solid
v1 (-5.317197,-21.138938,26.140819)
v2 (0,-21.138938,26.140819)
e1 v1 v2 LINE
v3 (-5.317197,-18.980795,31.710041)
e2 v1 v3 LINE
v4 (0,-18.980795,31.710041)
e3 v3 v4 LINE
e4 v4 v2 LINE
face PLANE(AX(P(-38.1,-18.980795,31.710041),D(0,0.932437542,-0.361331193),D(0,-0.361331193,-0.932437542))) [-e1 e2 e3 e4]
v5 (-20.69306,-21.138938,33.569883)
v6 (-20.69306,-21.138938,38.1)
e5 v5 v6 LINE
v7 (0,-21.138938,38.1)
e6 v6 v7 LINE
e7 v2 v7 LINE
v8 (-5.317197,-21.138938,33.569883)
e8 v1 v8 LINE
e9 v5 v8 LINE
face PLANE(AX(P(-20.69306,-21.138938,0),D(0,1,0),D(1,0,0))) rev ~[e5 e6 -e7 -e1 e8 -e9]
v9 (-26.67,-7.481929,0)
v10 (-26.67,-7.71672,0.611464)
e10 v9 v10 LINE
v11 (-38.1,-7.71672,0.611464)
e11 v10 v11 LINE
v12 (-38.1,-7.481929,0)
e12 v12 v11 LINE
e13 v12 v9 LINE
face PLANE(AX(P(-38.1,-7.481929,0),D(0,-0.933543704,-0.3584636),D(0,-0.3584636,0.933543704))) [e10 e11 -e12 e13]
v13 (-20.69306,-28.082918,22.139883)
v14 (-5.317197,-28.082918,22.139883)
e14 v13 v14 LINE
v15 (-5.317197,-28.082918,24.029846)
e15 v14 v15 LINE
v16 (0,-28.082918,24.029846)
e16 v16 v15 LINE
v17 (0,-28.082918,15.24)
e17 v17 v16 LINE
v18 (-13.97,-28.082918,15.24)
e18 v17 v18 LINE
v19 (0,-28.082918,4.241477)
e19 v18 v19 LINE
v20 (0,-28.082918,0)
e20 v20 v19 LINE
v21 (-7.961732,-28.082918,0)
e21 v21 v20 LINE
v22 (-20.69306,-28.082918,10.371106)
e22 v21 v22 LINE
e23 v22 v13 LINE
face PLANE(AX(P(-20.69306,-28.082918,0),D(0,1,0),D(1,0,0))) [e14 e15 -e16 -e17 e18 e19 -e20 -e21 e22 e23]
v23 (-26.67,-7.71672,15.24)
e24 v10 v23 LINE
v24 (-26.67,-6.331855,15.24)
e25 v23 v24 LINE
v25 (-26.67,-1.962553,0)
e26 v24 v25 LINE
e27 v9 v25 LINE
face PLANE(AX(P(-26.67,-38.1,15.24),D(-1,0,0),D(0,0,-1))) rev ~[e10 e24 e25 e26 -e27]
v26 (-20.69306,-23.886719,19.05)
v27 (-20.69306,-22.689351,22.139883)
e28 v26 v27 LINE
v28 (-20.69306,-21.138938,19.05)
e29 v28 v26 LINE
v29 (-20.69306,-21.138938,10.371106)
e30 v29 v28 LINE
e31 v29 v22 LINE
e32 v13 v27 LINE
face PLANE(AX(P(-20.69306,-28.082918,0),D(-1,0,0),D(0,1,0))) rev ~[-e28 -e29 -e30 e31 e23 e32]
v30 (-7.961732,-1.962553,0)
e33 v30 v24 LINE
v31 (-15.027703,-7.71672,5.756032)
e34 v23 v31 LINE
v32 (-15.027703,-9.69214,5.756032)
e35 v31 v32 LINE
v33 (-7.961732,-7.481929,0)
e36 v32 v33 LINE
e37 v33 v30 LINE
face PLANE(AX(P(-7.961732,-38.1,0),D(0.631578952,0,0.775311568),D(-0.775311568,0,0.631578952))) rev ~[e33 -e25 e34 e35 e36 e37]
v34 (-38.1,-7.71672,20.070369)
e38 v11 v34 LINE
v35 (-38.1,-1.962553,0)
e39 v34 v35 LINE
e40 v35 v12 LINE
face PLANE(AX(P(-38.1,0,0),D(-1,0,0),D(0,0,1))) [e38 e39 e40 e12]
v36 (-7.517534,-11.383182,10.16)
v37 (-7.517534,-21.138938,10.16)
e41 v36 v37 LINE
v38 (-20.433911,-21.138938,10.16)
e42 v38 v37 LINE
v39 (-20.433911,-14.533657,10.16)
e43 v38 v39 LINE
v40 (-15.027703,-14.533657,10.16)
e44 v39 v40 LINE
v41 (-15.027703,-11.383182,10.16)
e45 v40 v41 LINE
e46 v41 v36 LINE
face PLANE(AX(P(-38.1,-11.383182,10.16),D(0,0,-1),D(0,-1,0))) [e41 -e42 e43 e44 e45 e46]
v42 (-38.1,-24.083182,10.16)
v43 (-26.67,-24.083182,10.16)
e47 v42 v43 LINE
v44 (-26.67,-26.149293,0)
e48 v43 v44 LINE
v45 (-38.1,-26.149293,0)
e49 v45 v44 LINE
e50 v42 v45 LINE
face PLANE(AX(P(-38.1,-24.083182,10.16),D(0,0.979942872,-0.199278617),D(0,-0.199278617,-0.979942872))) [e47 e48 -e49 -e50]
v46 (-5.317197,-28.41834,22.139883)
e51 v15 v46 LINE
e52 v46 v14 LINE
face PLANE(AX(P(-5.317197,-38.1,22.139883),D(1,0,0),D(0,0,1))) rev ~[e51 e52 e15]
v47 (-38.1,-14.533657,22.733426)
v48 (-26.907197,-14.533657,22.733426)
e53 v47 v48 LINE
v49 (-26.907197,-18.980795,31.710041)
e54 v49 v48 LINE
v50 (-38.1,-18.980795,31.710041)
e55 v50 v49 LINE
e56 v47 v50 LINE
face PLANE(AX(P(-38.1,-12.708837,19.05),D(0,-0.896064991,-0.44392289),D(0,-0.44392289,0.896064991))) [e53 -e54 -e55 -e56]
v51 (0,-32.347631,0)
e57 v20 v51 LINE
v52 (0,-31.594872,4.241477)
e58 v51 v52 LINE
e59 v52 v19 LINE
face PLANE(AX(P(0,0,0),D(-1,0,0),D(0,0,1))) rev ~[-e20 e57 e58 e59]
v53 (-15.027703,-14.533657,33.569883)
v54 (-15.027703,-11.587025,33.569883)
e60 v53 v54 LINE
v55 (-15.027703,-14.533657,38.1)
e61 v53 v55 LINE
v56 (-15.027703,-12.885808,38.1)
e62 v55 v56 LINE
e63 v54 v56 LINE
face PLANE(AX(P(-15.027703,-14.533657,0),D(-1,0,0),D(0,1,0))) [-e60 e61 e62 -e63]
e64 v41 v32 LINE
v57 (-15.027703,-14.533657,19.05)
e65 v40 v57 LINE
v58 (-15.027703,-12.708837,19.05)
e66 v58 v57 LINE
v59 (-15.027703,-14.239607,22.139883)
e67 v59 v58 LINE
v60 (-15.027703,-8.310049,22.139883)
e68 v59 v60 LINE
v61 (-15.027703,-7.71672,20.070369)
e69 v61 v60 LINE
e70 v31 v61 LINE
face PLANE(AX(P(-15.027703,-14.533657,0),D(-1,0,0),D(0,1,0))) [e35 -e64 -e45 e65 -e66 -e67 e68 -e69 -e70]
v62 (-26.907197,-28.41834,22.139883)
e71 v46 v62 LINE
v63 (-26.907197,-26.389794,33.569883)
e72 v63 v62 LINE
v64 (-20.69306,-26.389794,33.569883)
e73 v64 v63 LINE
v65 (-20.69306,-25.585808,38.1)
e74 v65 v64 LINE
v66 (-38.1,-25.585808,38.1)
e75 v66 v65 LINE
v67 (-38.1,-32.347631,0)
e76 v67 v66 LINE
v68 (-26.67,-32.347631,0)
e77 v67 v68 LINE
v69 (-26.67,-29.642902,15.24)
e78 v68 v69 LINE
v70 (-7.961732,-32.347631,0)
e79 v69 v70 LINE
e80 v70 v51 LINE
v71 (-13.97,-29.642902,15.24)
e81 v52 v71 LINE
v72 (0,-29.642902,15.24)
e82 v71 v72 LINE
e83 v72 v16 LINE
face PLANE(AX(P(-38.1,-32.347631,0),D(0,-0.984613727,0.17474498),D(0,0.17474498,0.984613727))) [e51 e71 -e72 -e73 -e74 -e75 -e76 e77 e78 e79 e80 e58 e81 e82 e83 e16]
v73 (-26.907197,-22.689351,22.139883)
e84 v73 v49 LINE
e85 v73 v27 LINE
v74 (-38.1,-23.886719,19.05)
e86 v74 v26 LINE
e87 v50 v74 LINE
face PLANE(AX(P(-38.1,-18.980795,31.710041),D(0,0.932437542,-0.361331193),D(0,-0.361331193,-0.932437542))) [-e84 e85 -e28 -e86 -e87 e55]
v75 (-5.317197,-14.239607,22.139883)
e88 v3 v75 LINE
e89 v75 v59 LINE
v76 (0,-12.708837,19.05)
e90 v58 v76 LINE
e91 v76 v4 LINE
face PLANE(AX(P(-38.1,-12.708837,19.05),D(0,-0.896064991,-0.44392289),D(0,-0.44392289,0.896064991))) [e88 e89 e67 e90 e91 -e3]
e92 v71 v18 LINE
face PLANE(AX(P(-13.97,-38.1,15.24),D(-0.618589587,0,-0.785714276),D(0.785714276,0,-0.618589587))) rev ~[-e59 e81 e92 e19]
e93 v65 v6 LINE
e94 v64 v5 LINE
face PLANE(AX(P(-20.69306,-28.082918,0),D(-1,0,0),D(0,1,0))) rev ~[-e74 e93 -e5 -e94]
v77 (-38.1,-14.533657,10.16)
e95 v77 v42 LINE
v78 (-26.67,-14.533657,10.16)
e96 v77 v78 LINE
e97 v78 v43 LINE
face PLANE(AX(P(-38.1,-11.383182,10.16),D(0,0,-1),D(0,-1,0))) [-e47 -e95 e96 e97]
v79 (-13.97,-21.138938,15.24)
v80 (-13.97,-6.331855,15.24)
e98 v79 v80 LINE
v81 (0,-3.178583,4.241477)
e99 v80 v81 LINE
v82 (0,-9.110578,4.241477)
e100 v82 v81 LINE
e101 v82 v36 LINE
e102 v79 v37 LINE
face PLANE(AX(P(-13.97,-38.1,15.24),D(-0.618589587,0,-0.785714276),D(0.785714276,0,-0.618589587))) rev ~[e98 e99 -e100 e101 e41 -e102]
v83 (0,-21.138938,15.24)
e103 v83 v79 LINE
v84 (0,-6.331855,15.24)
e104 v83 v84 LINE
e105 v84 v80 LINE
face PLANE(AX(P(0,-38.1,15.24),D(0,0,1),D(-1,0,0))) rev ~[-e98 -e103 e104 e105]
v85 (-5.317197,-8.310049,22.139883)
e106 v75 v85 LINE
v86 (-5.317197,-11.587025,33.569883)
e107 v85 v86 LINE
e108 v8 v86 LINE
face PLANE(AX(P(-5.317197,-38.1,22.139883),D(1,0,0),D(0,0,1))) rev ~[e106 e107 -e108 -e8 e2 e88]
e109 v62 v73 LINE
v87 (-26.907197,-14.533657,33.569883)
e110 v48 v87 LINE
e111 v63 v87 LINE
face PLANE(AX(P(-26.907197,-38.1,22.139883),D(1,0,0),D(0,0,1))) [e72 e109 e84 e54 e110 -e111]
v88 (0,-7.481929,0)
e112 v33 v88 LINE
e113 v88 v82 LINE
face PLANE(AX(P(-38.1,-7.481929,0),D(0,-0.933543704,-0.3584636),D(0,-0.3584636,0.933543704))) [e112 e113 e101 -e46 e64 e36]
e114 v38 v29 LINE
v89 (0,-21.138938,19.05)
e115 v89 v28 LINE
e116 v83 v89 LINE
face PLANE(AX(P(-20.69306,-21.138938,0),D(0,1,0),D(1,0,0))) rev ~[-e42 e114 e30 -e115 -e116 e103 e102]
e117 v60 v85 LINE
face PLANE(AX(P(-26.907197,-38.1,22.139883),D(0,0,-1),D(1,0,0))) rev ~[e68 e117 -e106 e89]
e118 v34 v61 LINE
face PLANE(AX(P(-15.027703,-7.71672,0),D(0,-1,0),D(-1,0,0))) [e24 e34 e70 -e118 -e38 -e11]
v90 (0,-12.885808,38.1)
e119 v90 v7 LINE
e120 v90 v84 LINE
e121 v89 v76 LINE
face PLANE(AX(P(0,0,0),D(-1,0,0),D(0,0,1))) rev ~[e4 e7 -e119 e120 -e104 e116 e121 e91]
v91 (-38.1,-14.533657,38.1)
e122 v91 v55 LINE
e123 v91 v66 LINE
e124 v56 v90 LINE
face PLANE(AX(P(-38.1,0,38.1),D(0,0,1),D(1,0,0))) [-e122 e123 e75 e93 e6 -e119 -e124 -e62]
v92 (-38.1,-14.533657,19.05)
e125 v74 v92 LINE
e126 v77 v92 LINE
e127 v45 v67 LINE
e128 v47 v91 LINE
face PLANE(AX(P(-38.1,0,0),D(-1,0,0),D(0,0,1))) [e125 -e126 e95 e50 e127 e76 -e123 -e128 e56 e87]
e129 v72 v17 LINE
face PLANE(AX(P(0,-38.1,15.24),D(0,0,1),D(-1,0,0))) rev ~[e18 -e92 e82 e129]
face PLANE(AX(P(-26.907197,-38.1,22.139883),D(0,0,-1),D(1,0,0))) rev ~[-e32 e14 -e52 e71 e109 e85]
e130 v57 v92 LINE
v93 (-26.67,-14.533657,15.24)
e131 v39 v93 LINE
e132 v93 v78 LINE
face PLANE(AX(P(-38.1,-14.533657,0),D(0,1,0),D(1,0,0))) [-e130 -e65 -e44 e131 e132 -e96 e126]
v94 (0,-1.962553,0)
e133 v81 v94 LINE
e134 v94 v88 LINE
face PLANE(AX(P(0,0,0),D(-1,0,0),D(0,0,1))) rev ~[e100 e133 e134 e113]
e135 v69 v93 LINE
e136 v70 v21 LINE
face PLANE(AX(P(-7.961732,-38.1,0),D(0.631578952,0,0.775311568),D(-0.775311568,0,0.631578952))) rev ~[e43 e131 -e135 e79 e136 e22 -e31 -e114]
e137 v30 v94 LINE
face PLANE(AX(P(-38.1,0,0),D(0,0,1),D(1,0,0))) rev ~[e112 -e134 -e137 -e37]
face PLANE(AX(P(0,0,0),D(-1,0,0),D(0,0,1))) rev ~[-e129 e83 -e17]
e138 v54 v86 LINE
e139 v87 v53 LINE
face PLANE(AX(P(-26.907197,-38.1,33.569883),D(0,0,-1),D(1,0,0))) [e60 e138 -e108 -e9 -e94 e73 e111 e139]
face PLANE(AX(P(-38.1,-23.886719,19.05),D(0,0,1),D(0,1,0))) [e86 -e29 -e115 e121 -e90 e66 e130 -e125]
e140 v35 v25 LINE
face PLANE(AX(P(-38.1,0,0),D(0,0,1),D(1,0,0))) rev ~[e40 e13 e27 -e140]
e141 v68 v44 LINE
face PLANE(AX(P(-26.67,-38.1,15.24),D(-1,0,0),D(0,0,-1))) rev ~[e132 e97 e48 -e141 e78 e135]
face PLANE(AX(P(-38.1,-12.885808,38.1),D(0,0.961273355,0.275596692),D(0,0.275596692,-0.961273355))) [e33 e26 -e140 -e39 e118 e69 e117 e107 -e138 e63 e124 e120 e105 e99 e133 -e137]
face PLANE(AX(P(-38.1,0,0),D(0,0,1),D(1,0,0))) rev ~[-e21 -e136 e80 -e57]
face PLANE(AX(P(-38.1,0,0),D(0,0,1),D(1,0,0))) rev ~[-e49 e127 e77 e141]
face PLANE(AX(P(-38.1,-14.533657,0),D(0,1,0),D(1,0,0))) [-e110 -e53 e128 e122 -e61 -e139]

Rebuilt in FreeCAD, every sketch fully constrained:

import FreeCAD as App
import Part
import Sketcher
Q = App.Units.Quantity

doc = App.newDocument("Part")
params = doc.addObject("Spreadsheet::Sheet", "Params")
for row, (alias, value) in enumerate([
    ("sketch1_width", "1.5 in"),
    ("pad1_length", "1.5 in"),
    ("sketch2_height", "0.6 in"),
    ("sketch2_length", "0.7 in"),
    ("sketch2_width", "0.85 in"),
    ("sketch2_width2", "0.55 in"),
    ("sketch2_height2", "0.45 in"),
    ("pocket1_length", "1.5 in"),
    ("sketch3_width", "0.5 in"),
    ("sketch3_height", "1.5 in"),
    ("pocket2_length", "1.5 in"),
    ("pocket3_length", "1.5 in"),
], start=1):
    params.set(f"A{row}", alias)
    params.set(f"B{row}", "=" + value)
    params.setAlias(f"B{row}", alias)

body = doc.addObject("PartDesign::Body", "Body")

sketch1 = body.newObject("Sketcher::SketchObject", "Sketch")
sketch1.AttachmentSupport = (doc.getObject("XZ_Plane"), [""])
sketch1.MapMode = "FlatFace"
sketch1.addGeometry([
    Part.LineSegment(App.Vector(-38, 38, 0), App.Vector(-38, 0, 0)),
    Part.LineSegment(App.Vector(-38, 0, 0), App.Vector(0, 0, 0)),
    Part.LineSegment(App.Vector(0, 0, 0), App.Vector(0, 38, 0)),
    Part.LineSegment(App.Vector(0, 38, 0), App.Vector(-38, 38, 0)),
], False)
sketch1.addConstraint([
    Sketcher.Constraint("Coincident", 0, 2, 1, 1),
    Sketcher.Constraint("Coincident", 1, 2, 2, 1),
    Sketcher.Constraint("Coincident", 2, 2, 3, 1),
    Sketcher.Constraint("Coincident", 3, 2, 0, 1),
    Sketcher.Constraint("Vertical", 0),
    Sketcher.Constraint("Horizontal", 1),
    Sketcher.Constraint("Vertical", 2),
    Sketcher.Constraint("Horizontal", 3),
    Sketcher.Constraint("Coincident", 1, 2, -1, 1),
    Sketcher.Constraint("Equal", 3, 0),
    Sketcher.Constraint("DistanceX", 1, 1, 1, 2, Q("1.5 in")),
])
sketch1.setExpression("Constraints[10]", "Params.sketch1_width")
pad1 = body.newObject("PartDesign::Pad", "Pad")
pad1.Profile = sketch1
pad1.setExpression("Length", "Params.pad1_length")

sketch2 = body.newObject("Sketcher::SketchObject", "Sketch001")
sketch2.AttachmentSupport = (doc.getObject("XZ_Plane"), [""])
sketch2.MapMode = "FlatFace"
sketch2.AttachmentOffset = App.Placement(App.Vector(0, 0, 1.5 * 25.4), App.Rotation())
sketch2.addGeometry([
    Part.LineSegment(App.Vector(-27, 34, 0), App.Vector(-27, 22, 0)),
    Part.LineSegment(App.Vector(-27, 22, 0), App.Vector(-5, 22, 0)),
    Part.LineSegment(App.Vector(-5, 22, 0), App.Vector(-5, 34, 0)),
    Part.LineSegment(App.Vector(-5, 34, 0), App.Vector(-27, 34, 0)),
    Part.LineSegment(App.Vector(-27, 15, 0), App.Vector(-27, 0, 0)),
    Part.LineSegment(App.Vector(-27, 0, 0), App.Vector(-8, 0, 0)),
    Part.LineSegment(App.Vector(-8, 0, 0), App.Vector(-27, 15, 0)),
    Part.LineSegment(App.Vector(0, 4, 0), App.Vector(0, 15, 0)),
    Part.LineSegment(App.Vector(0, 15, 0), App.Vector(-14, 15, 0)),
    Part.LineSegment(App.Vector(-14, 15, 0), App.Vector(0, 4, 0)),
], False)
sketch2.addConstraint([
    Sketcher.Constraint("Coincident", 0, 2, 1, 1),
    Sketcher.Constraint("Coincident", 1, 2, 2, 1),
    Sketcher.Constraint("Coincident", 2, 2, 3, 1),
    Sketcher.Constraint("Coincident", 3, 2, 0, 1),
    Sketcher.Constraint("Coincident", 4, 2, 5, 1),
    Sketcher.Constraint("Coincident", 5, 2, 6, 1),
    Sketcher.Constraint("Coincident", 6, 2, 4, 1),
    Sketcher.Constraint("Coincident", 7, 2, 8, 1),
    Sketcher.Constraint("Coincident", 8, 2, 9, 1),
    Sketcher.Constraint("Coincident", 9, 2, 7, 1),
    Sketcher.Constraint("Vertical", 0),
    Sketcher.Constraint("Horizontal", 1),
    Sketcher.Constraint("Vertical", 2),
    Sketcher.Constraint("Horizontal", 3),
    Sketcher.Constraint("Vertical", 4),
    Sketcher.Constraint("Horizontal", 5),
    Sketcher.Constraint("Vertical", 7),
    Sketcher.Constraint("Horizontal", 8),
    Sketcher.Constraint("PointOnObject", 4, 2, -1),
    Sketcher.Constraint("PointOnObject", 7, 2, -2),
    Sketcher.Constraint("Horizontal", 6, 2, 7, 2),
    Sketcher.Constraint("DistanceY", 4, 2, 4, 1, Q("0.6 in")),
    Sketcher.Constraint("Distance", 9, Q("0.7 in")),
    Sketcher.Constraint("DistanceX", 1, 1, 1, 2, Q("0.85 in")),
    Sketcher.Constraint("DistanceX", 8, 2, 8, 1, Q("0.55 in")),
    Sketcher.Constraint("DistanceY", 0, 2, 0, 1, Q("0.45 in")),
    Sketcher.Constraint("DistanceX", 6, 2, 8, 2, Q("0.5 in")),
    Sketcher.Constraint("Distance", 6, Q("0.95 in")),
    Sketcher.Constraint("DistanceX", 0, 2, -1, 1, Q("26.907197 mm")),
    Sketcher.Constraint("DistanceY", -1, 1, 0, 2, Q("22.139883 mm")),
])
sketch2.setExpression("Constraints[21]", "Params.sketch2_height")
sketch2.setExpression("Constraints[22]", "Params.sketch2_length")
sketch2.setExpression("Constraints[23]", "Params.sketch2_width")
sketch2.setExpression("Constraints[24]", "Params.sketch2_width2")
sketch2.setExpression("Constraints[25]", "Params.sketch2_height2")
pocket1 = body.newObject("PartDesign::Pocket", "Pocket")
pocket1.Profile = sketch2
pocket1.setExpression("Length", "Params.pocket1_length")

sketch3 = body.newObject("Sketcher::SketchObject", "Sketch002")
sketch3.AttachmentSupport = (doc.getObject("YZ_Plane"), [""])
sketch3.MapMode = "FlatFace"
sketch3.AttachmentOffset = App.Placement(App.Vector(0, 0, -1.5 * 25.4), App.Rotation())
sketch3.addGeometry([
    Part.LineSegment(App.Vector(0, 38.1, 0), App.Vector(-12.9, 38.1, 0)),
    Part.LineSegment(App.Vector(-12.9, 38.1, 0), App.Vector(-2, 0, 0)),
    Part.LineSegment(App.Vector(-2, 0, 0), App.Vector(0, 0, 0)),
    Part.LineSegment(App.Vector(0, 0, 0), App.Vector(0, 38.1, 0)),
    Part.LineSegment(App.Vector(-19, 31.7, 0), App.Vector(-23.9, 19.1, 0)),
    Part.LineSegment(App.Vector(-23.9, 19.1, 0), App.Vector(-12.7, 19.1, 0)),
    Part.LineSegment(App.Vector(-12.7, 19.1, 0), App.Vector(-19, 31.7, 0)),
    Part.LineSegment(App.Vector(-25.6, 38.1, 0), App.Vector(-38.1, 38.1, 0)),
    Part.LineSegment(App.Vector(-38.1, 38.1, 0), App.Vector(-38.1, 0, 0)),
    Part.LineSegment(App.Vector(-38.1, 0, 0), App.Vector(-32.3, 0, 0)),
    Part.LineSegment(App.Vector(-32.3, 0, 0), App.Vector(-25.6, 38.1, 0)),
    Part.LineSegment(App.Vector(-24.1, 10.2, 0), App.Vector(-26.1, 0, 0)),
    Part.LineSegment(App.Vector(-26.1, 0, 0), App.Vector(-7.5, 0, 0)),
    Part.LineSegment(App.Vector(-7.5, 0, 0), App.Vector(-11.4, 10.2, 0)),
    Part.LineSegment(App.Vector(-11.4, 10.2, 0), App.Vector(-24.1, 10.2, 0)),
], False)
sketch3.addConstraint([
    Sketcher.Constraint("Coincident", 0, 2, 1, 1),
    Sketcher.Constraint("Coincident", 1, 2, 2, 1),
    Sketcher.Constraint("Coincident", 2, 2, 3, 1),
    Sketcher.Constraint("Coincident", 3, 2, 0, 1),
    Sketcher.Constraint("Coincident", 4, 2, 5, 1),
    Sketcher.Constraint("Coincident", 5, 2, 6, 1),
    Sketcher.Constraint("Coincident", 6, 2, 4, 1),
    Sketcher.Constraint("Coincident", 7, 2, 8, 1),
    Sketcher.Constraint("Coincident", 8, 2, 9, 1),
    Sketcher.Constraint("Coincident", 9, 2, 10, 1),
    Sketcher.Constraint("Coincident", 10, 2, 7, 1),
    Sketcher.Constraint("Coincident", 11, 2, 12, 1),
    Sketcher.Constraint("Coincident", 12, 2, 13, 1),
    Sketcher.Constraint("Coincident", 13, 2, 14, 1),
    Sketcher.Constraint("Coincident", 14, 2, 11, 1),
    Sketcher.Constraint("Horizontal", 0),
    Sketcher.Constraint("Horizontal", 2),
    Sketcher.Constraint("Vertical", 3),
    Sketcher.Constraint("Horizontal", 5),
    Sketcher.Constraint("Horizontal", 7),
    Sketcher.Constraint("Vertical", 8),
    Sketcher.Constraint("Horizontal", 9),
    Sketcher.Constraint("Horizontal", 12),
    Sketcher.Constraint("Horizontal", 14),
    Sketcher.Constraint("Coincident", 2, 2, -1, 1),
    Sketcher.Constraint("PointOnObject", 8, 2, -1),
    Sketcher.Constraint("PointOnObject", 11, 2, -1),
    Sketcher.Constraint("Horizontal", 3, 2, 7, 2),
    Sketcher.Constraint("DistanceX", 14, 2, 14, 1, Q("0.5 in")),
    Sketcher.Constraint("DistanceY", 3, 1, 3, 2, Q("1.5 in")),
    Sketcher.Constraint("DistanceX", 7, 2, -1, 1, Q("1.5 in")),
    Sketcher.Constraint("DistanceY", -1, 1, 13, 2, Q("0.4 in")),
    Sketcher.Constraint("DistanceX", 10, 2, 0, 2, Q("0.5 in")),
    Sketcher.Constraint("DistanceY", -1, 1, 4, 2, Q("0.75 in")),
    Sketcher.Constraint("DistanceX", 0, 2, 0, 1, Q("12.885808 mm")),
    Sketcher.Constraint("DistanceX", 5, 1, 5, 2, Q("11.177882 mm")),
    Sketcher.Constraint("DistanceX", 9, 1, 9, 2, Q("5.752369 mm")),
    Sketcher.Constraint("DistanceX", 9, 2, 12, 2, Q("24.865702 mm")),
    Sketcher.Constraint("Distance", 4, Q("13.577361 mm")),
    Sketcher.Constraint("Distance", 11, Q("10.367951 mm")),
    Sketcher.Constraint("Distance", 13, Q("10.883261 mm")),
    Sketcher.Constraint("DistanceX", 2, 1, 2, 2, Q("1.962553 mm")),
    Sketcher.Constraint("DistanceX", 4, 2, -1, 1, Q("23.886719 mm")),
    Sketcher.Constraint("DistanceY", -1, 1, 6, 2, Q("31.710041 mm")),
])
sketch3.setExpression("Constraints[28]", "Params.sketch3_width")
sketch3.setExpression("Constraints[29]", "Params.sketch3_height")
pocket2 = body.newObject("PartDesign::Pocket", "Pocket001")
pocket2.Profile = sketch3
pocket2.setExpression("Length", "Params.pocket2_length")
pocket2.Reversed = True

sketch4 = body.newObject("Sketcher::SketchObject", "Sketch003")
sketch4.AttachmentSupport = (doc.getObject("XY_Plane"), [""])
sketch4.MapMode = "FlatFace"
sketch4.addGeometry([
    Part.LineSegment(App.Vector(-15, -8, 0), App.Vector(-38, -8, 0)),
    Part.LineSegment(App.Vector(-38, -8, 0), App.Vector(-38, -15, 0)),
    Part.LineSegment(App.Vector(-38, -15, 0), App.Vector(-15, -15, 0)),
    Part.LineSegment(App.Vector(-15, -15, 0), App.Vector(-15, -8, 0)),
    Part.LineSegment(App.Vector(-21, -21, 0), App.Vector(-21, -28, 0)),
    Part.LineSegment(App.Vector(-21, -28, 0), App.Vector(0, -28, 0)),
    Part.LineSegment(App.Vector(0, -28, 0), App.Vector(0, -21, 0)),
    Part.LineSegment(App.Vector(0, -21, 0), App.Vector(-21, -21, 0)),
], False)
sketch4.addConstraint([
    Sketcher.Constraint("Coincident", 0, 2, 1, 1),
    Sketcher.Constraint("Coincident", 1, 2, 2, 1),
    Sketcher.Constraint("Coincident", 2, 2, 3, 1),
    Sketcher.Constraint("Coincident", 3, 2, 0, 1),
    Sketcher.Constraint("Coincident", 4, 2, 5, 1),
    Sketcher.Constraint("Coincident", 5, 2, 6, 1),
    Sketcher.Constraint("Coincident", 6, 2, 7, 1),
    Sketcher.Constraint("Coincident", 7, 2, 4, 1),
    Sketcher.Constraint("Horizontal", 0),
    Sketcher.Constraint("Vertical", 1),
    Sketcher.Constraint("Horizontal", 2),
    Sketcher.Constraint("Vertical", 3),
    Sketcher.Constraint("Vertical", 4),
    Sketcher.Constraint("Horizontal", 5),
    Sketcher.Constraint("Vertical", 6),
    Sketcher.Constraint("Horizontal", 7),
    Sketcher.Constraint("PointOnObject", 5, 2, -2),
    Sketcher.Constraint("DistanceX", 0, 2, -1, 1, Q("1.5 in")),
    Sketcher.Constraint("DistanceX", 5, 1, 5, 2, Q("20.69306 mm")),
    Sketcher.Constraint("DistanceY", 4, 2, 4, 1, Q("6.94398 mm")),
    Sketcher.Constraint("DistanceY", 4, 2, 3, 2, Q("20.366198 mm")),
    Sketcher.Constraint("DistanceX", 0, 2, 0, 1, Q("23.072297 mm")),
    Sketcher.Constraint("DistanceY", 1, 2, 1, 1, Q("6.816937 mm")),
    Sketcher.Constraint("DistanceY", 0, 2, -1, 1, Q("7.71672 mm")),
])
pocket3 = body.newObject("PartDesign::Pocket", "Pocket002")
pocket3.Profile = sketch4
pocket3.setExpression("Length", "Params.pocket3_length")
pocket3.Reversed = True

doc.recompute()
